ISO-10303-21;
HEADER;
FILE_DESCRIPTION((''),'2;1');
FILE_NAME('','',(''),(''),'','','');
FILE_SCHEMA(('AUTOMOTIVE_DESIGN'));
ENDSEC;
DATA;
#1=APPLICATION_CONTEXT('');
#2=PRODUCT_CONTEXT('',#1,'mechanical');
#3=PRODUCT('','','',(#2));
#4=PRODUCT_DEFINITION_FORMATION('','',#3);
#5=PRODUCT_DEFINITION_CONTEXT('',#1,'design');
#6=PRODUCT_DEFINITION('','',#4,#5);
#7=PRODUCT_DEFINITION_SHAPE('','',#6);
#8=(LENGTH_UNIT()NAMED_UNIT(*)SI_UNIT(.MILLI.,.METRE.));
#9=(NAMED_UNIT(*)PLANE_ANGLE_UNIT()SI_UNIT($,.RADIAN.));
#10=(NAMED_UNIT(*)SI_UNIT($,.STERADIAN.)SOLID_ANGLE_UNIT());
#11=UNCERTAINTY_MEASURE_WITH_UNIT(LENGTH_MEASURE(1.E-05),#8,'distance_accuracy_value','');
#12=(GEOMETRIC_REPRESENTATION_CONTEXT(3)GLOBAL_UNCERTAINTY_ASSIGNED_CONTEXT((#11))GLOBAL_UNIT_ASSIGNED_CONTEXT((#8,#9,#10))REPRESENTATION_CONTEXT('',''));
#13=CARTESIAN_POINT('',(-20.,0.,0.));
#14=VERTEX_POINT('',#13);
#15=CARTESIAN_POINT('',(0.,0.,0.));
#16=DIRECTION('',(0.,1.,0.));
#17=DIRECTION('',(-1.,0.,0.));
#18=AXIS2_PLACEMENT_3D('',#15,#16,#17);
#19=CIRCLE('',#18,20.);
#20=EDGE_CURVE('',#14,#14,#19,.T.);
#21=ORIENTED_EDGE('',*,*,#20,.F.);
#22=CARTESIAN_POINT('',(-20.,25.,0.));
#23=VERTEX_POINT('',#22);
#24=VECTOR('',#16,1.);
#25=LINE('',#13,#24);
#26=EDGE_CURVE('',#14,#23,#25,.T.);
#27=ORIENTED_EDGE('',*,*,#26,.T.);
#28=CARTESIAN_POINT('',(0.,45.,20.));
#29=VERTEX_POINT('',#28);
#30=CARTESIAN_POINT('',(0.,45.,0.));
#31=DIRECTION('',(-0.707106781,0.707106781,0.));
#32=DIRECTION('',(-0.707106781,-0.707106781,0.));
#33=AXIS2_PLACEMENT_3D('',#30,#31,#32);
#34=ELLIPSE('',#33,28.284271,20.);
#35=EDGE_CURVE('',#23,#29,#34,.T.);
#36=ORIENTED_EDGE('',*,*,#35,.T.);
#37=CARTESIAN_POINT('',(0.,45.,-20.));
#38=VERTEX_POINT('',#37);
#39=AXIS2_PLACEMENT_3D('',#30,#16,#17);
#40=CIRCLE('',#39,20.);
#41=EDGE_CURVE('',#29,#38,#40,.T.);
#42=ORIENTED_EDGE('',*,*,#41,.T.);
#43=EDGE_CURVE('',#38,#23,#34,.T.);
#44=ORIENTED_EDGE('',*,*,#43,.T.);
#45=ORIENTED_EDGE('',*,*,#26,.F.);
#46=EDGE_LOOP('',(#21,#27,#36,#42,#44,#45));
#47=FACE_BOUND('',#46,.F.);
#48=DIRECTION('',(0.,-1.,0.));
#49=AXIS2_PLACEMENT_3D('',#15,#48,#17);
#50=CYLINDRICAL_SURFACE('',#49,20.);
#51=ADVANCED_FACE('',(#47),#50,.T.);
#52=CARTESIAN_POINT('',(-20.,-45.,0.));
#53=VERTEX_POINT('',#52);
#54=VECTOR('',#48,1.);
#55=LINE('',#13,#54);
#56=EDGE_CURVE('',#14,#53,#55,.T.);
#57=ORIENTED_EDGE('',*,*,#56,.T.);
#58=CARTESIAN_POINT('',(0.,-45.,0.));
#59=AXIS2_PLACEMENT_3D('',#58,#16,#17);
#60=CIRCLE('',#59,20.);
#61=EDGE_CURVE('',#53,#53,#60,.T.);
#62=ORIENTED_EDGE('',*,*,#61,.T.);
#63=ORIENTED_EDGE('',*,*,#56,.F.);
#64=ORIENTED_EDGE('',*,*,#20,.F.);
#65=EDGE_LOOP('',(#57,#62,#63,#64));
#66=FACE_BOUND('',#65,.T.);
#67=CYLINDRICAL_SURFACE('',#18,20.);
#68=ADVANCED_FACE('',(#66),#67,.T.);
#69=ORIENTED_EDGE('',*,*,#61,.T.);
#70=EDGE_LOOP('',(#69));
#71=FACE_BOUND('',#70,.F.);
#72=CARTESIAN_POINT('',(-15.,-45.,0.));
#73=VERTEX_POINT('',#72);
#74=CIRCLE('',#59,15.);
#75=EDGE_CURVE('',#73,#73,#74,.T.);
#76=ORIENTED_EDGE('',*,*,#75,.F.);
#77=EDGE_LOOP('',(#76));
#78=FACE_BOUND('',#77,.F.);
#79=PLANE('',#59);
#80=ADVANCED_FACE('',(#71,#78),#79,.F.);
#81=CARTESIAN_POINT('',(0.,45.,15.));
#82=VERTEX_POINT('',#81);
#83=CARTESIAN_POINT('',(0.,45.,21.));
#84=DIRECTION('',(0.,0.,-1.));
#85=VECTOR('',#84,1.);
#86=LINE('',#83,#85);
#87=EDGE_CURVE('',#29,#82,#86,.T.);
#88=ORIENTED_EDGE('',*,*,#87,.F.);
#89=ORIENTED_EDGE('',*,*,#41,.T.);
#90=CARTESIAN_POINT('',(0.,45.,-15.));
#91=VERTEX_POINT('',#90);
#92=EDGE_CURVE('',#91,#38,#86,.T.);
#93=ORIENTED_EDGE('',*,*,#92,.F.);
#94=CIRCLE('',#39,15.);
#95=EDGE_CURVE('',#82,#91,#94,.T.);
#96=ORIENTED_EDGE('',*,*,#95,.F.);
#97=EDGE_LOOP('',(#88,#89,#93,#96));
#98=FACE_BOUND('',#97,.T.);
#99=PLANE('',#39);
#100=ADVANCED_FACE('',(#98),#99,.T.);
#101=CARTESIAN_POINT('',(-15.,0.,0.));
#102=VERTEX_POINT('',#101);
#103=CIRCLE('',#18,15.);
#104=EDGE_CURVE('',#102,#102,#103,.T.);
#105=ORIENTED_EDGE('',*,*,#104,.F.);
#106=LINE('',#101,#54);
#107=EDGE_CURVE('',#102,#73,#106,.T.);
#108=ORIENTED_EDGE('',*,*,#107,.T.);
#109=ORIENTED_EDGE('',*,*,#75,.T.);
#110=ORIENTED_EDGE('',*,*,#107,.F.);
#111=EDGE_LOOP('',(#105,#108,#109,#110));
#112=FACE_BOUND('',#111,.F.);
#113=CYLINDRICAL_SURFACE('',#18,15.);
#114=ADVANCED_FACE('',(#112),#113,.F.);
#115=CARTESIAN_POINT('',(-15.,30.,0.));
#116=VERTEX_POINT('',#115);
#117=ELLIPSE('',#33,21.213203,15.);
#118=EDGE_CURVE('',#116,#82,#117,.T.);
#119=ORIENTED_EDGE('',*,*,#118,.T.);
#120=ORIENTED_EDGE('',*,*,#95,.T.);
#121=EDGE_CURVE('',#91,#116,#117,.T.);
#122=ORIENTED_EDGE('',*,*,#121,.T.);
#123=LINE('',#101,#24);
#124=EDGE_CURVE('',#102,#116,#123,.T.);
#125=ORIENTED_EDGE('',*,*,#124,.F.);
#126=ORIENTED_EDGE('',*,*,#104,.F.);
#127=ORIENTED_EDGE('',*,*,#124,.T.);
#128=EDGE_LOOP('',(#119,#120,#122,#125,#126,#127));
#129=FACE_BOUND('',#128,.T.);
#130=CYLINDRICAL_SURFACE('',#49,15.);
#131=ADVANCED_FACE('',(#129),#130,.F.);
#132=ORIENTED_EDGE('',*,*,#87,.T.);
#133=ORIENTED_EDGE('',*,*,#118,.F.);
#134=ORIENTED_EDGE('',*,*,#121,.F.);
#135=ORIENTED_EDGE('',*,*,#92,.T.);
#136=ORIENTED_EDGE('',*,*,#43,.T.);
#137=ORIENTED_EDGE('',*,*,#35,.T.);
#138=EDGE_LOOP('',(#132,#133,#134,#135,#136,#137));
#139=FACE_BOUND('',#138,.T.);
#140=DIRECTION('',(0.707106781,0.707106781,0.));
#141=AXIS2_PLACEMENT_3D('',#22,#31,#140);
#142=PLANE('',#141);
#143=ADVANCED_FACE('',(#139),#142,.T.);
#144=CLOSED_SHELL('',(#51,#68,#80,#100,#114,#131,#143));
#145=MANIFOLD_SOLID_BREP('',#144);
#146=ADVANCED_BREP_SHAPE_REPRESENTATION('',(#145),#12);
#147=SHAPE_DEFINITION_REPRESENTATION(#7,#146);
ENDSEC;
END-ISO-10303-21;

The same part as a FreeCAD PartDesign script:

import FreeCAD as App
import Part
import Sketcher
Q = App.Units.Quantity


def add_polygon(sketch, points):
    """Adds a closed chain of lines whose ends are joined by coincident constraints."""
    first, n = sketch.GeometryCount, len(points)
    for a, b in zip(points, points[1:] + points[:1]):
        sketch.addGeometry(Part.LineSegment(App.Vector(*a, 0), App.Vector(*b, 0)), False)
    for i in range(n):
        sketch.addConstraint(Sketcher.Constraint("Coincident", first + i, 2, first + (i + 1) % n, 1))

doc = App.newDocument("Part")
body = doc.addObject("PartDesign::Body", "Body")

sketch1 = body.newObject("Sketcher::SketchObject", "Sketch")
sketch1.AttachmentSupport = (doc.getObject("XZ_Plane"), [""])
sketch1.MapMode = "FlatFace"
sketch1.addGeometry(Part.Circle(App.Vector(0, 0, 0), App.Vector(0, 0, 1), 20), False)
sketch1.addGeometry(Part.Circle(App.Vector(0, 0, 0), App.Vector(0, 0, 1), 15), False)
sketch1.addConstraint(Sketcher.Constraint("Coincident", 0, 3, -1, 1))
sketch1.addConstraint(Sketcher.Constraint("Coincident", 1, 3, -1, 1))
sketch1.addConstraint(Sketcher.Constraint("Diameter", 0, Q("40 mm")))
sketch1.addConstraint(Sketcher.Constraint("Diameter", 1, Q("30 mm")))
pad1 = body.newObject("PartDesign::Pad", "Pad")
pad1.Profile = sketch1
pad1.Length = 90
pad1.Midplane = True

sketch2 = body.newObject("Sketcher::SketchObject", "Sketch001")
sketch2.AttachmentSupport = (doc.getObject("XY_Plane"), [""])
sketch2.MapMode = "FlatFace"
add_polygon(sketch2, [(0, 45), (-20, 45), (-20, 25)])
sketch2.addConstraint(Sketcher.Constraint("Horizontal", 0))
sketch2.addConstraint(Sketcher.Constraint("Vertical", 1))
sketch2.addConstraint(Sketcher.Constraint("PointOnObject", 2, 2, -2))
sketch2.addConstraint(Sketcher.Constraint("Equal", 0, 1))
sketch2.addConstraint(Sketcher.Constraint("DistanceX", 0, 2, 0, 1, Q("20 mm")))
sketch2.addConstraint(Sketcher.Constraint("DistanceY", -1, 1, 0, 2, Q("45 mm")))
pocket1 = body.newObject("PartDesign::Pocket", "Pocket")
pocket1.Profile = sketch2
pocket1.Type = "ThroughAll"
pocket1.Midplane = True

doc.recompute()
